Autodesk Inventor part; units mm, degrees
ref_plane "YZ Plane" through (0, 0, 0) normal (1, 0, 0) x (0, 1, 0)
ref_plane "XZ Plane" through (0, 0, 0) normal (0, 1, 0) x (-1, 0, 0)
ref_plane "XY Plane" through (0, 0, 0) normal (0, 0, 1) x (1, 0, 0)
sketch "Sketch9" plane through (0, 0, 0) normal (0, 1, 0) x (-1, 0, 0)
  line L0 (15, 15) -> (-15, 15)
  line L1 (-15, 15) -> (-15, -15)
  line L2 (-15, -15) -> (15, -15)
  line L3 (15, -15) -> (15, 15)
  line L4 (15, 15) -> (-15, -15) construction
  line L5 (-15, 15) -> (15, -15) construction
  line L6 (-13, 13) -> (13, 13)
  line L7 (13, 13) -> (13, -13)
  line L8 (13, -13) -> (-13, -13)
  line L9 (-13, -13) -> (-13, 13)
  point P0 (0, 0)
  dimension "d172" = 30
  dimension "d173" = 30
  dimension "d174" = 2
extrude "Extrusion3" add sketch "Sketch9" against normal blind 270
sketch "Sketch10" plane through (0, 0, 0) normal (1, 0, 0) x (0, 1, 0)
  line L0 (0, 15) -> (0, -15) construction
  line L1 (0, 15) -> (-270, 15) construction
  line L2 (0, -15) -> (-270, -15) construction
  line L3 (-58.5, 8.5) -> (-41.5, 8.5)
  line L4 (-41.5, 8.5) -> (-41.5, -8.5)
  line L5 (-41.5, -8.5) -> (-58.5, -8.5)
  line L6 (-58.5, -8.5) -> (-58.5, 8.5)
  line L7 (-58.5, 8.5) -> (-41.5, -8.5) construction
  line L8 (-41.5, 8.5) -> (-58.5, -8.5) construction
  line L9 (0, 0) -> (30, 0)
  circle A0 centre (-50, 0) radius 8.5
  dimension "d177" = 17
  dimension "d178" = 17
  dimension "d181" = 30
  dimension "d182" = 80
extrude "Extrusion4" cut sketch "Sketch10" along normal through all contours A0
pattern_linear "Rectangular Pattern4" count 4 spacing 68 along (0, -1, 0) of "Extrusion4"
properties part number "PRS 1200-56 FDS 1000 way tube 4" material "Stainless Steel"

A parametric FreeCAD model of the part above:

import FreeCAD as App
import Part
import Sketcher
from FreeCAD import Vector
Q = App.Units.Quantity

doc = App.newDocument("Part")
params = doc.addObject("Spreadsheet::Sheet", "Params")
for row, (alias, value) in enumerate([
    ("sketch1_width", "30 mm"),
    ("pad1_length", "270 mm"),
    ("sketch2_diameter", "17 mm"),
    ("linearpattern_pitch", "68 mm"),
], start=1):
    params.set(f"A{row}", alias)
    params.set(f"B{row}", "=" + value)
    params.setAlias(f"B{row}", alias)

body = doc.addObject("PartDesign::Body", "Body")

# Sketch on XZ plane
sketch1 = body.newObject("Sketcher::SketchObject", "Sketch")
sketch1.AttachmentSupport = (doc.getObject("XZ_Plane"), [""])
sketch1.MapMode = "FlatFace"
sketch1.addGeometry([
    Part.LineSegment(Vector(-15, -15, 0), Vector(-15, 15, 0)),  # 0
    Part.LineSegment(Vector(-15, 15, 0), Vector(15, 15, 0)),  # 1
    Part.LineSegment(Vector(15, 15, 0), Vector(15, -15, 0)),  # 2
    Part.LineSegment(Vector(15, -15, 0), Vector(-15, -15, 0)),  # 3
    Part.LineSegment(Vector(13, -13, 0), Vector(13, 13, 0)),  # 4
    Part.LineSegment(Vector(13, 13, 0), Vector(-13, 13, 0)),  # 5
    Part.LineSegment(Vector(-13, 13, 0), Vector(-13, -13, 0)),  # 6
    Part.LineSegment(Vector(-13, -13, 0), Vector(13, -13, 0)),  # 7
], False)
sketch1.addConstraint([
    Sketcher.Constraint("Coincident", 0, 2, 1, 1),
    Sketcher.Constraint("Coincident", 1, 2, 2, 1),
    Sketcher.Constraint("Coincident", 2, 2, 3, 1),
    Sketcher.Constraint("Coincident", 3, 2, 0, 1),
    Sketcher.Constraint("Coincident", 4, 2, 5, 1),
    Sketcher.Constraint("Coincident", 5, 2, 6, 1),
    Sketcher.Constraint("Coincident", 6, 2, 7, 1),
    Sketcher.Constraint("Coincident", 7, 2, 4, 1),
    Sketcher.Constraint("Vertical", 0),
    Sketcher.Constraint("Horizontal", 1),
    Sketcher.Constraint("Vertical", 2),
    Sketcher.Constraint("Horizontal", 3),
    Sketcher.Constraint("Vertical", 4),
    Sketcher.Constraint("Horizontal", 5),
    Sketcher.Constraint("Vertical", 6),
    Sketcher.Constraint("Horizontal", 7),
    Sketcher.Constraint("Symmetric", 0, 2, 2, 2, -1, 1),
    Sketcher.Constraint("Symmetric", 4, 2, 6, 2, -1, 1),
    Sketcher.Constraint("Equal", 3, 0),
    Sketcher.Constraint("Equal", 7, 4),
    Sketcher.Constraint("DistanceX", 1, 1, 1, 2, Q("30 mm")),
    Sketcher.Constraint("DistanceX", 4, 2, 1, 2, Q("2 mm")),
])
sketch1.setExpression("Constraints[20]", "Params.sketch1_width")
pad1 = body.newObject("PartDesign::Pad", "Pad")
pad1.Profile = sketch1
pad1.setExpression("Length", "Params.pad1_length")

# Sketch on YZ plane
sketch2 = body.newObject("Sketcher::SketchObject", "Sketch001")
sketch2.AttachmentSupport = (doc.getObject("YZ_Plane"), [""])
sketch2.MapMode = "FlatFace"
sketch2.addGeometry(Part.Circle(Vector(-50, 0, 0), Vector(0, 0, 1), 8), False)
sketch2.addConstraint([
    Sketcher.Constraint("PointOnObject", 0, 3, -1),
    Sketcher.Constraint("Diameter", 0, Q("17 mm")),
    Sketcher.Constraint("DistanceX", 0, 3, -1, 1, Q("50 mm")),
])
sketch2.setExpression("Constraints[1]", "Params.sketch2_diameter")
pocket1 = body.newObject("PartDesign::Pocket", "Pocket")
pocket1.Profile = sketch2
pocket1.Type = "ThroughAll"
pocket1.Reversed = True
doc.recompute()

linearpattern = body.newObject("PartDesign::LinearPattern", "LinearPattern")
linearpattern.Originals = [pocket1]
linearpattern.Direction = (doc.getObject("Y_Axis"), [""])
linearpattern.Mode = "offset"
linearpattern.setExpression("Offset", "Params.linearpattern_pitch")
linearpattern.Occurrences = 4
linearpattern.Reversed = True
body.Tip = linearpattern

doc.recompute()
